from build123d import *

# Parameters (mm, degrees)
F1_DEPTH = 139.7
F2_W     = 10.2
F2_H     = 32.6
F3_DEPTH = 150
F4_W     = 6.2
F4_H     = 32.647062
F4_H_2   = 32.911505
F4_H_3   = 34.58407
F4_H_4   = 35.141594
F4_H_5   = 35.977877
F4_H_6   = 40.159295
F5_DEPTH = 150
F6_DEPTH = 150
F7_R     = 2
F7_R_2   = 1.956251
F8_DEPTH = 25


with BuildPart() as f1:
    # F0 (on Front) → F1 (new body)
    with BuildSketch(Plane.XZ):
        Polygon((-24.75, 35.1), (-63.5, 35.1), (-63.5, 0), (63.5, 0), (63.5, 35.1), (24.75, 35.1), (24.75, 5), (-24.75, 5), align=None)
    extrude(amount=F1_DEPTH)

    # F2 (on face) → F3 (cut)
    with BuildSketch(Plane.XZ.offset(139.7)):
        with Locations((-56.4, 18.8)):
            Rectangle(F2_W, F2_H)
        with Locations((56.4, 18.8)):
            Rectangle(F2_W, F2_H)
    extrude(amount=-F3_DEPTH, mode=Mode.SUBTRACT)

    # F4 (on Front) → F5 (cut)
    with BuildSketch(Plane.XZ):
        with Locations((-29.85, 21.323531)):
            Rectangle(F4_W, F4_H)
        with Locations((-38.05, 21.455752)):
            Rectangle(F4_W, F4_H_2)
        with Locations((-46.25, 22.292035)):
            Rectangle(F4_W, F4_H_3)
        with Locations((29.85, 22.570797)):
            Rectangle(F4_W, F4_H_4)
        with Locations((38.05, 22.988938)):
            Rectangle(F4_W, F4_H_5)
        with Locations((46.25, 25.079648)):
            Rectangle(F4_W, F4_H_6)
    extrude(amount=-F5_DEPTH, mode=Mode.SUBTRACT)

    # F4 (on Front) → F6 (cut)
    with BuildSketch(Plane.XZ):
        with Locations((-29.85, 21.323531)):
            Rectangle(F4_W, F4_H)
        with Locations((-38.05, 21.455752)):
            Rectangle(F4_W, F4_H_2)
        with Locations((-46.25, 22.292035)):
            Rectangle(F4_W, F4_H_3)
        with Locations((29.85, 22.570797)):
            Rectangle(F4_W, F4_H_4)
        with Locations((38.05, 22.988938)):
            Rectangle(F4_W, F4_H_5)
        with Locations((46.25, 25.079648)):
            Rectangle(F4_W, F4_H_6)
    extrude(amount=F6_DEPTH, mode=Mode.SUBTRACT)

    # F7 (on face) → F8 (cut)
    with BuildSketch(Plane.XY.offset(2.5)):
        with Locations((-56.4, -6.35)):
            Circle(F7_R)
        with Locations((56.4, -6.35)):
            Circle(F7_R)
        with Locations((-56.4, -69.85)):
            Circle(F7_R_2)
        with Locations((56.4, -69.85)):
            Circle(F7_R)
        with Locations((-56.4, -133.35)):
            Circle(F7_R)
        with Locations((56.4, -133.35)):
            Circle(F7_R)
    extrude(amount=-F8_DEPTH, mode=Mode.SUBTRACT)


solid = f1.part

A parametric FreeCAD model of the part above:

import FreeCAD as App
import Part
import Sketcher

V = App.Vector
Q = App.Units.Quantity

doc = App.newDocument("Part")
body = doc.addObject("PartDesign::Body", "Body")

# Sketch on XZ plane
sketch1 = body.newObject("Sketcher::SketchObject", "Sketch")
sketch1.AttachmentSupport = (doc.getObject("XZ_Plane"), [""])
sketch1.MapMode = "FlatFace"
sketch1.addGeometry(Part.LineSegment(V(-25, 35, 0), V(-64, 35, 0)), False)
sketch1.addGeometry(Part.LineSegment(V(-64, 35, 0), V(-64, 0, 0)), False)
sketch1.addGeometry(Part.LineSegment(V(-64, 0, 0), V(64, 0, 0)), False)
sketch1.addGeometry(Part.LineSegment(V(64, 0, 0), V(64, 35, 0)), False)
sketch1.addGeometry(Part.LineSegment(V(64, 35, 0), V(25, 35, 0)), False)
sketch1.addGeometry(Part.LineSegment(V(25, 35, 0), V(25, 5, 0)), False)
sketch1.addGeometry(Part.LineSegment(V(25, 5, 0), V(-25, 5, 0)), False)
sketch1.addGeometry(Part.LineSegment(V(-25, 5, 0), V(-25, 35, 0)), False)
sketch1.addConstraint(Sketcher.Constraint("Coincident", 0, 2, 1, 1))
sketch1.addConstraint(Sketcher.Constraint("Coincident", 1, 2, 2, 1))
sketch1.addConstraint(Sketcher.Constraint("Coincident", 2, 2, 3, 1))
sketch1.addConstraint(Sketcher.Constraint("Coincident", 3, 2, 4, 1))
sketch1.addConstraint(Sketcher.Constraint("Coincident", 4, 2, 5, 1))
sketch1.addConstraint(Sketcher.Constraint("Coincident", 5, 2, 6, 1))
sketch1.addConstraint(Sketcher.Constraint("Coincident", 6, 2, 7, 1))
sketch1.addConstraint(Sketcher.Constraint("Coincident", 7, 2, 0, 1))
sketch1.addConstraint(Sketcher.Constraint("Horizontal", 0))
sketch1.addConstraint(Sketcher.Constraint("Vertical", 1))
sketch1.addConstraint(Sketcher.Constraint("Horizontal", 2))
sketch1.addConstraint(Sketcher.Constraint("Vertical", 3))
sketch1.addConstraint(Sketcher.Constraint("Horizontal", 4))
sketch1.addConstraint(Sketcher.Constraint("Vertical", 5))
sketch1.addConstraint(Sketcher.Constraint("Horizontal", 6))
sketch1.addConstraint(Sketcher.Constraint("Vertical", 7))
sketch1.addConstraint(Sketcher.Constraint("Symmetric", 1, 2, 2, 2, -1, 1))
sketch1.addConstraint(Sketcher.Constraint("Symmetric", 4, 2, 7, 2, -2))
sketch1.addConstraint(Sketcher.Constraint("DistanceX", 2, 1, 2, 2, Q("127 mm")))
sketch1.addConstraint(Sketcher.Constraint("DistanceX", 6, 2, 6, 1, Q("49.5 mm")))
sketch1.addConstraint(Sketcher.Constraint("DistanceY", 1, 2, 1, 1, Q("35.1 mm")))
sketch1.addConstraint(Sketcher.Constraint("DistanceY", 5, 2, 5, 1, Q("30.1 mm")))
pad1 = body.newObject("PartDesign::Pad", "Pad")
pad1.Profile = sketch1
pad1.Length = 139.7

# Sketch on XZ plane
sketch2 = body.newObject("Sketcher::SketchObject", "Sketch001")
sketch2.AttachmentSupport = (doc.getObject("XZ_Plane"), [""])
sketch2.MapMode = "FlatFace"
sketch2.AttachmentOffset = App.Placement(V(0, 0, 139.7), App.Rotation())
sketch2.addGeometry(Part.LineSegment(V(-62, 35, 0), V(-62, 2, 0)), False)
sketch2.addGeometry(Part.LineSegment(V(-62, 2, 0), V(-51, 2, 0)), False)
sketch2.addGeometry(Part.LineSegment(V(-51, 2, 0), V(-51, 35, 0)), False)
sketch2.addGeometry(Part.LineSegment(V(-51, 35, 0), V(-62, 35, 0)), False)
sketch2.addGeometry(Part.LineSegment(V(51, 35, 0), V(51, 2, 0)), False)
sketch2.addGeometry(Part.LineSegment(V(51, 2, 0), V(62, 2, 0)), False)
sketch2.addGeometry(Part.LineSegment(V(62, 2, 0), V(62, 35, 0)), False)
sketch2.addGeometry(Part.LineSegment(V(62, 35, 0), V(51, 35, 0)), False)
sketch2.addConstraint(Sketcher.Constraint("Coincident", 0, 2, 1, 1))
sketch2.addConstraint(Sketcher.Constraint("Coincident", 1, 2, 2, 1))
sketch2.addConstraint(Sketcher.Constraint("Coincident", 2, 2, 3, 1))
sketch2.addConstraint(Sketcher.Constraint("Coincident", 3, 2, 0, 1))
sketch2.addConstraint(Sketcher.Constraint("Coincident", 4, 2, 5, 1))
sketch2.addConstraint(Sketcher.Constraint("Coincident", 5, 2, 6, 1))
sketch2.addConstraint(Sketcher.Constraint("Coincident", 6, 2, 7, 1))
sketch2.addConstraint(Sketcher.Constraint("Coincident", 7, 2, 4, 1))
sketch2.addConstraint(Sketcher.Constraint("Vertical", 0))
sketch2.addConstraint(Sketcher.Constraint("Horizontal", 1))
sketch2.addConstraint(Sketcher.Constraint("Vertical", 2))
sketch2.addConstraint(Sketcher.Constraint("Horizontal", 3))
sketch2.addConstraint(Sketcher.Constraint("Vertical", 4))
sketch2.addConstraint(Sketcher.Constraint("Horizontal", 5))
sketch2.addConstraint(Sketcher.Constraint("Vertical", 6))
sketch2.addConstraint(Sketcher.Constraint("Horizontal", 7))
sketch2.addConstraint(Sketcher.Constraint("Symmetric", 1, 2, 4, 2, -2))
sketch2.addConstraint(Sketcher.Constraint("Symmetric", 3, 2, 6, 2, -2))
sketch2.addConstraint(Sketcher.Constraint("DistanceX", 1, 1, 1, 2, Q("10.2 mm")))
sketch2.addConstraint(Sketcher.Constraint("DistanceY", 0, 2, 0, 1, Q("32.6 mm")))
sketch2.addConstraint(Sketcher.Constraint("DistanceX", 0, 2, 5, 2, Q("123 mm")))
sketch2.addConstraint(Sketcher.Constraint("DistanceY", -1, 1, 0, 2, Q("2.5 mm")))
pocket1 = body.newObject("PartDesign::Pocket", "Pocket")
pocket1.Profile = sketch2
pocket1.Length = 150

# Sketch on XZ plane
sketch3 = body.newObject("Sketcher::SketchObject", "Sketch002")
sketch3.AttachmentSupport = (doc.getObject("XZ_Plane"), [""])
sketch3.MapMode = "FlatFace"
sketch3.addGeometry(Part.LineSegment(V(-33, 38, 0), V(-33, 5, 0)), False)
sketch3.addGeometry(Part.LineSegment(V(-33, 5, 0), V(-27, 5, 0)), False)
sketch3.addGeometry(Part.LineSegment(V(-27, 5, 0), V(-27, 38, 0)), False)
sketch3.addGeometry(Part.LineSegment(V(-27, 38, 0), V(-33, 38, 0)), False)
sketch3.addGeometry(Part.LineSegment(V(-41, 38, 0), V(-41, 5, 0)), False)
sketch3.addGeometry(Part.LineSegment(V(-41, 5, 0), V(-35, 5, 0)), False)
sketch3.addGeometry(Part.LineSegment(V(-35, 5, 0), V(-35, 38, 0)), False)
sketch3.addGeometry(Part.LineSegment(V(-35, 38, 0), V(-41, 38, 0)), False)
sketch3.addGeometry(Part.LineSegment(V(-49, 40, 0), V(-49, 5, 0)), False)
sketch3.addGeometry(Part.LineSegment(V(-49, 5, 0), V(-43, 5, 0)), False)
sketch3.addGeometry(Part.LineSegment(V(-43, 5, 0), V(-43, 40, 0)), False)
sketch3.addGeometry(Part.LineSegment(V(-43, 40, 0), V(-49, 40, 0)), False)
sketch3.addGeometry(Part.LineSegment(V(27, 40, 0), V(27, 5, 0)), False)
sketch3.addGeometry(Part.LineSegment(V(27, 5, 0), V(33, 5, 0)), False)
sketch3.addGeometry(Part.LineSegment(V(33, 5, 0), V(33, 40, 0)), False)
sketch3.addGeometry(Part.LineSegment(V(33, 40, 0), V(27, 40, 0)), False)
sketch3.addGeometry(Part.LineSegment(V(35, 41, 0), V(35, 5, 0)), False)
sketch3.addGeometry(Part.LineSegment(V(35, 5, 0), V(41, 5, 0)), False)
sketch3.addGeometry(Part.LineSegment(V(41, 5, 0), V(41, 41, 0)), False)
sketch3.addGeometry(Part.LineSegment(V(41, 41, 0), V(35, 41, 0)), False)
sketch3.addGeometry(Part.LineSegment(V(43, 45, 0), V(43, 5, 0)), False)
sketch3.addGeometry(Part.LineSegment(V(43, 5, 0), V(49, 5, 0)), False)
sketch3.addGeometry(Part.LineSegment(V(49, 5, 0), V(49, 45, 0)), False)
sketch3.addGeometry(Part.LineSegment(V(49, 45, 0), V(43, 45, 0)), False)
sketch3.addConstraint(Sketcher.Constraint("Coincident", 0, 2, 1, 1))
sketch3.addConstraint(Sketcher.Constraint("Coincident", 1, 2, 2, 1))
sketch3.addConstraint(Sketcher.Constraint("Coincident", 2, 2, 3, 1))
sketch3.addConstraint(Sketcher.Constraint("Coincident", 3, 2, 0, 1))
sketch3.addConstraint(Sketcher.Constraint("Coincident", 4, 2, 5, 1))
sketch3.addConstraint(Sketcher.Constraint("Coincident", 5, 2, 6, 1))
sketch3.addConstraint(Sketcher.Constraint("Coincident", 6, 2, 7, 1))
sketch3.addConstraint(Sketcher.Constraint("Coincident", 7, 2, 4, 1))
sketch3.addConstraint(Sketcher.Constraint("Coincident", 8, 2, 9, 1))
sketch3.addConstraint(Sketcher.Constraint("Coincident", 9, 2, 10, 1))
sketch3.addConstraint(Sketcher.Constraint("Coincident", 10, 2, 11, 1))
sketch3.addConstraint(Sketcher.Constraint("Coincident", 11, 2, 8, 1))
sketch3.addConstraint(Sketcher.Constraint("Coincident", 12, 2, 13, 1))
sketch3.addConstraint(Sketcher.Constraint("Coincident", 13, 2, 14, 1))
sketch3.addConstraint(Sketcher.Constraint("Coincident", 14, 2, 15, 1))
sketch3.addConstraint(Sketcher.Constraint("Coincident", 15, 2, 12, 1))
sketch3.addConstraint(Sketcher.Constraint("Coincident", 16, 2, 17, 1))
sketch3.addConstraint(Sketcher.Constraint("Coincident", 17, 2, 18, 1))
sketch3.addConstraint(Sketcher.Constraint("Coincident", 18, 2, 19, 1))
sketch3.addConstraint(Sketcher.Constraint("Coincident", 19, 2, 16, 1))
sketch3.addConstraint(Sketcher.Constraint("Coincident", 20, 2, 21, 1))
sketch3.addConstraint(Sketcher.Constraint("Coincident", 21, 2, 22, 1))
sketch3.addConstraint(Sketcher.Constraint("Coincident", 22, 2, 23, 1))
sketch3.addConstraint(Sketcher.Constraint("Coincident", 23, 2, 20, 1))
sketch3.addConstraint(Sketcher.Constraint("Vertical", 0))
sketch3.addConstraint(Sketcher.Constraint("Horizontal", 1))
sketch3.addConstraint(Sketcher.Constraint("Vertical", 2))
sketch3.addConstraint(Sketcher.Constraint("Horizontal", 3))
sketch3.addConstraint(Sketcher.Constraint("Vertical", 4))
sketch3.addConstraint(Sketcher.Constraint("Horizontal", 5))
sketch3.addConstraint(Sketcher.Constraint("Vertical", 6))
sketch3.addConstraint(Sketcher.Constraint("Horizontal", 7))
sketch3.addConstraint(Sketcher.Constraint("Vertical", 8))
sketch3.addConstraint(Sketcher.Constraint("Horizontal", 9))
sketch3.addConstraint(Sketcher.Constraint("Vertical", 10))
sketch3.addConstraint(Sketcher.Constraint("Horizontal", 11))
sketch3.addConstraint(Sketcher.Constraint("Vertical", 12))
sketch3.addConstraint(Sketcher.Constraint("Horizontal", 13))
sketch3.addConstraint(Sketcher.Constraint("Vertical", 14))
sketch3.addConstraint(Sketcher.Constraint("Horizontal", 15))
sketch3.addConstraint(Sketcher.Constraint("Vertical", 16))
sketch3.addConstraint(Sketcher.Constraint("Horizontal", 17))
sketch3.addConstraint(Sketcher.Constraint("Vertical", 18))
sketch3.addConstraint(Sketcher.Constraint("Horizontal", 19))
sketch3.addConstraint(Sketcher.Constraint("Vertical", 20))
sketch3.addConstraint(Sketcher.Constraint("Horizontal", 21))
sketch3.addConstraint(Sketcher.Constraint("Vertical", 22))
sketch3.addConstraint(Sketcher.Constraint("Horizontal", 23))
sketch3.addConstraint(Sketcher.Constraint("Symmetric", 1, 2, 12, 2, -2))
sketch3.addConstraint(Sketcher.Constraint("Symmetric", 5, 2, 16, 2, -2))
sketch3.addConstraint(Sketcher.Constraint("Symmetric", 9, 2, 20, 2, -2))
sketch3.addConstraint(Sketcher.Constraint("Horizontal", 1, 2, 4, 2))
sketch3.addConstraint(Sketcher.Constraint("Horizontal", 5, 2, 8, 2))
sketch3.addConstraint(Sketcher.Constraint("Equal", 3, 5))
sketch3.addConstraint(Sketcher.Constraint("Equal", 7, 9))
sketch3.addConstraint(Sketcher.Constraint("Equal", 11, 13))
sketch3.addConstraint(Sketcher.Constraint("Equal", 15, 17))
sketch3.addConstraint(Sketcher.Constraint("Equal", 19, 21))
sketch3.addConstraint(Sketcher.Constraint("DistanceX", 1, 1, 1, 2, Q("6.2 mm")))
sketch3.addConstraint(Sketcher.Constraint("DistanceY", -1, 1, 0, 2, Q("5 mm")))
sketch3.addConstraint(Sketcher.Constraint("DistanceX", 5, 2, 0, 2, Q("2 mm")))
sketch3.addConstraint(Sketcher.Constraint("DistanceX", 9, 2, 4, 2, Q("2 mm")))
sketch3.addConstraint(Sketcher.Constraint("DistanceX", 1, 2, 12, 2, Q("53.5 mm")))
sketch3.addConstraint(Sketcher.Constraint("DistanceY", 0, 2, 0, 1, Q("32.647062 mm")))
sketch3.addConstraint(Sketcher.Constraint("DistanceY", 8, 2, 8, 1, Q("34.58407 mm")))
sketch3.addConstraint(Sketcher.Constraint("DistanceY", 14, 2, 22, 2, Q("5.017702 mm")))
sketch3.addConstraint(Sketcher.Constraint("DistanceY", 4, 2, 4, 1, Q("32.911505 mm")))
sketch3.addConstraint(Sketcher.Constraint("DistanceY", 12, 2, 12, 1, Q("35.141594 mm")))
sketch3.addConstraint(Sketcher.Constraint("DistanceY", 16, 2, 16, 1, Q("35.977877 mm")))
pocket2 = body.newObject("PartDesign::Pocket", "Pocket001")
pocket2.Profile = sketch3
pocket2.Length = 150

# Sketch on XZ plane
sketch4 = body.newObject("Sketcher::SketchObject", "Sketch003")
sketch4.AttachmentSupport = (doc.getObject("XZ_Plane"), [""])
sketch4.MapMode = "FlatFace"
sketch4.addGeometry(Part.LineSegment(V(-33, 38, 0), V(-33, 5, 0)), False)
sketch4.addGeometry(Part.LineSegment(V(-33, 5, 0), V(-27, 5, 0)), False)
sketch4.addGeometry(Part.LineSegment(V(-27, 5, 0), V(-27, 38, 0)), False)
sketch4.addGeometry(Part.LineSegment(V(-27, 38, 0), V(-33, 38, 0)), False)
sketch4.addGeometry(Part.LineSegment(V(-41, 38, 0), V(-41, 5, 0)), False)
sketch4.addGeometry(Part.LineSegment(V(-41, 5, 0), V(-35, 5, 0)), False)
sketch4.addGeometry(Part.LineSegment(V(-35, 5, 0), V(-35, 38, 0)), False)
sketch4.addGeometry(Part.LineSegment(V(-35, 38, 0), V(-41, 38, 0)), False)
sketch4.addGeometry(Part.LineSegment(V(-49, 40, 0), V(-49, 5, 0)), False)
sketch4.addGeometry(Part.LineSegment(V(-49, 5, 0), V(-43, 5, 0)), False)
sketch4.addGeometry(Part.LineSegment(V(-43, 5, 0), V(-43, 40, 0)), False)
sketch4.addGeometry(Part.LineSegment(V(-43, 40, 0), V(-49, 40, 0)), False)
sketch4.addGeometry(Part.LineSegment(V(27, 40, 0), V(27, 5, 0)), False)
sketch4.addGeometry(Part.LineSegment(V(27, 5, 0), V(33, 5, 0)), False)
sketch4.addGeometry(Part.LineSegment(V(33, 5, 0), V(33, 40, 0)), False)
sketch4.addGeometry(Part.LineSegment(V(33, 40, 0), V(27, 40, 0)), False)
sketch4.addGeometry(Part.LineSegment(V(35, 41, 0), V(35, 5, 0)), False)
sketch4.addGeometry(Part.LineSegment(V(35, 5, 0), V(41, 5, 0)), False)
sketch4.addGeometry(Part.LineSegment(V(41, 5, 0), V(41, 41, 0)), False)
sketch4.addGeometry(Part.LineSegment(V(41, 41, 0), V(35, 41, 0)), False)
sketch4.addGeometry(Part.LineSegment(V(43, 45, 0), V(43, 5, 0)), False)
sketch4.addGeometry(Part.LineSegment(V(43, 5, 0), V(49, 5, 0)), False)
sketch4.addGeometry(Part.LineSegment(V(49, 5, 0), V(49, 45, 0)), False)
sketch4.addGeometry(Part.LineSegment(V(49, 45, 0), V(43, 45, 0)), False)
sketch4.addConstraint(Sketcher.Constraint("Coincident", 0, 2, 1, 1))
sketch4.addConstraint(Sketcher.Constraint("Coincident", 1, 2, 2, 1))
sketch4.addConstraint(Sketcher.Constraint("Coincident", 2, 2, 3, 1))
sketch4.addConstraint(Sketcher.Constraint("Coincident", 3, 2, 0, 1))
sketch4.addConstraint(Sketcher.Constraint("Coincident", 4, 2, 5, 1))
sketch4.addConstraint(Sketcher.Constraint("Coincident", 5, 2, 6, 1))
sketch4.addConstraint(Sketcher.Constraint("Coincident", 6, 2, 7, 1))
sketch4.addConstraint(Sketcher.Constraint("Coincident", 7, 2, 4, 1))
sketch4.addConstraint(Sketcher.Constraint("Coincident", 8, 2, 9, 1))
sketch4.addConstraint(Sketcher.Constraint("Coincident", 9, 2, 10, 1))
sketch4.addConstraint(Sketcher.Constraint("Coincident", 10, 2, 11, 1))
sketch4.addConstraint(Sketcher.Constraint("Coincident", 11, 2, 8, 1))
sketch4.addConstraint(Sketcher.Constraint("Coincident", 12, 2, 13, 1))
sketch4.addConstraint(Sketcher.Constraint("Coincident", 13, 2, 14, 1))
sketch4.addConstraint(Sketcher.Constraint("Coincident", 14, 2, 15, 1))
sketch4.addConstraint(Sketcher.Constraint("Coincident", 15, 2, 12, 1))
sketch4.addConstraint(Sketcher.Constraint("Coincident", 16, 2, 17, 1))
sketch4.addConstraint(Sketcher.Constraint("Coincident", 17, 2, 18, 1))
sketch4.addConstraint(Sketcher.Constraint("Coincident", 18, 2, 19, 1))
sketch4.addConstraint(Sketcher.Constraint("Coincident", 19, 2, 16, 1))
sketch4.addConstraint(Sketcher.Constraint("Coincident", 20, 2, 21, 1))
sketch4.addConstraint(Sketcher.Constraint("Coincident", 21, 2, 22, 1))
sketch4.addConstraint(Sketcher.Constraint("Coincident", 22, 2, 23, 1))
sketch4.addConstraint(Sketcher.Constraint("Coincident", 23, 2, 20, 1))
sketch4.addConstraint(Sketcher.Constraint("Vertical", 0))
sketch4.addConstraint(Sketcher.Constraint("Horizontal", 1))
sketch4.addConstraint(Sketcher.Constraint("Vertical", 2))
sketch4.addConstraint(Sketcher.Constraint("Horizontal", 3))
sketch4.addConstraint(Sketcher.Constraint("Vertical", 4))
sketch4.addConstraint(Sketcher.Constraint("Horizontal", 5))
sketch4.addConstraint(Sketcher.Constraint("Vertical", 6))
sketch4.addConstraint(Sketcher.Constraint("Horizontal", 7))
sketch4.addConstraint(Sketcher.Constraint("Vertical", 8))
sketch4.addConstraint(Sketcher.Constraint("Horizontal", 9))
sketch4.addConstraint(Sketcher.Constraint("Vertical", 10))
sketch4.addConstraint(Sketcher.Constraint("Horizontal", 11))
sketch4.addConstraint(Sketcher.Constraint("Vertical", 12))
sketch4.addConstraint(Sketcher.Constraint("Horizontal", 13))
sketch4.addConstraint(Sketcher.Constraint("Vertical", 14))
sketch4.addConstraint(Sketcher.Constraint("Horizontal", 15))
sketch4.addConstraint(Sketcher.Constraint("Vertical", 16))
sketch4.addConstraint(Sketcher.Constraint("Horizontal", 17))
sketch4.addConstraint(Sketcher.Constraint("Vertical", 18))
sketch4.addConstraint(Sketcher.Constraint("Horizontal", 19))
sketch4.addConstraint(Sketcher.Constraint("Vertical", 20))
sketch4.addConstraint(Sketcher.Constraint("Horizontal", 21))
sketch4.addConstraint(Sketcher.Constraint("Vertical", 22))
sketch4.addConstraint(Sketcher.Constraint("Horizontal", 23))
sketch4.addConstraint(Sketcher.Constraint("Symmetric", 1, 2, 12, 2, -2))
sketch4.addConstraint(Sketcher.Constraint("Symmetric", 5, 2, 16, 2, -2))
sketch4.addConstraint(Sketcher.Constraint("Symmetric", 9, 2, 20, 2, -2))
sketch4.addConstraint(Sketcher.Constraint("Horizontal", 1, 2, 4, 2))
sketch4.addConstraint(Sketcher.Constraint("Horizontal", 5, 2, 8, 2))
sketch4.addConstraint(Sketcher.Constraint("Equal", 3, 5))
sketch4.addConstraint(Sketcher.Constraint("Equal", 7, 9))
sketch4.addConstraint(Sketcher.Constraint("Equal", 11, 13))
sketch4.addConstraint(Sketcher.Constraint("Equal", 15, 17))
sketch4.addConstraint(Sketcher.Constraint("Equal", 19, 21))
sketch4.addConstraint(Sketcher.Constraint("DistanceX", 1, 1, 1, 2, Q("6.2 mm")))
sketch4.addConstraint(Sketcher.Constraint("DistanceY", -1, 1, 0, 2, Q("5 mm")))
sketch4.addConstraint(Sketcher.Constraint("DistanceX", 5, 2, 0, 2, Q("2 mm")))
sketch4.addConstraint(Sketcher.Constraint("DistanceX", 9, 2, 4, 2, Q("2 mm")))
sketch4.addConstraint(Sketcher.Constraint("DistanceX", 1, 2, 12, 2, Q("53.5 mm")))
sketch4.addConstraint(Sketcher.Constraint("DistanceY", 0, 2, 0, 1, Q("32.647062 mm")))
sketch4.addConstraint(Sketcher.Constraint("DistanceY", 8, 2, 8, 1, Q("34.58407 mm")))
sketch4.addConstraint(Sketcher.Constraint("DistanceY", 14, 2, 22, 2, Q("5.017702 mm")))
sketch4.addConstraint(Sketcher.Constraint("DistanceY", 4, 2, 4, 1, Q("32.911505 mm")))
sketch4.addConstraint(Sketcher.Constraint("DistanceY", 12, 2, 12, 1, Q("35.141594 mm")))
sketch4.addConstraint(Sketcher.Constraint("DistanceY", 16, 2, 16, 1, Q("35.977877 mm")))
pocket3 = body.newObject("PartDesign::Pocket", "Pocket002")
pocket3.Profile = sketch4
pocket3.Length = 150
pocket3.Reversed = True

# Sketch on XY plane
sketch5 = body.newObject("Sketcher::SketchObject", "Sketch004")
sketch5.AttachmentSupport = (doc.getObject("XY_Plane"), [""])
sketch5.MapMode = "FlatFace"
sketch5.AttachmentOffset = App.Placement(V(0, 0, 2.5), App.Rotation())
sketch5.addGeometry(Part.Circle(V(-56.4, -6.3, 0), V(0, 0, 1), 2), False)
sketch5.addGeometry(Part.Circle(V(56.4, -6.3, 0), V(0, 0, 1), 2), False)
sketch5.addGeometry(Part.Circle(V(-56.4, -69.8, 0), V(0, 0, 1), 2), False)
sketch5.addGeometry(Part.Circle(V(56.4, -69.8, 0), V(0, 0, 1), 2), False)
sketch5.addGeometry(Part.Circle(V(-56.4, -133.3, 0), V(0, 0, 1), 2), False)
sketch5.addGeometry(Part.Circle(V(56.4, -133.3, 0), V(0, 0, 1), 2), False)
sketch5.addConstraint(Sketcher.Constraint("Equal", 0, 1))
sketch5.addConstraint(Sketcher.Constraint("Equal", 1, 3))
sketch5.addConstraint(Sketcher.Constraint("Equal", 3, 4))
sketch5.addConstraint(Sketcher.Constraint("Equal", 4, 5))
sketch5.addConstraint(Sketcher.Constraint("Symmetric", 0, 3, 1, 3, -2))
sketch5.addConstraint(Sketcher.Constraint("Symmetric", 2, 3, 3, 3, -2))
sketch5.addConstraint(Sketcher.Constraint("Symmetric", 4, 3, 5, 3, -2))
sketch5.addConstraint(Sketcher.Constraint("Vertical", 0, 3, 2, 3))
sketch5.addConstraint(Sketcher.Constraint("Vertical", 2, 3, 4, 3))
sketch5.addConstraint(Sketcher.Constraint("Diameter", 0, Q("4 mm")))
sketch5.addConstraint(Sketcher.Constraint("DistanceY", 4, 3, 0, 3, Q("127 mm")))
sketch5.addConstraint(Sketcher.Constraint("Diameter", 2, Q("3.912502 mm")))
sketch5.addConstraint(Sketcher.Constraint("DistanceX", 0, 3, -1, 1, Q("56.4 mm")))
sketch5.addConstraint(Sketcher.Constraint("DistanceY", 2, 3, 0, 3, Q("63.5 mm")))
sketch5.addConstraint(Sketcher.Constraint("DistanceY", 0, 3, -1, 1, Q("6.35 mm")))
pocket4 = body.newObject("PartDesign::Pocket", "Pocket003")
pocket4.Profile = sketch5
pocket4.Length = 25

doc.recompute()
